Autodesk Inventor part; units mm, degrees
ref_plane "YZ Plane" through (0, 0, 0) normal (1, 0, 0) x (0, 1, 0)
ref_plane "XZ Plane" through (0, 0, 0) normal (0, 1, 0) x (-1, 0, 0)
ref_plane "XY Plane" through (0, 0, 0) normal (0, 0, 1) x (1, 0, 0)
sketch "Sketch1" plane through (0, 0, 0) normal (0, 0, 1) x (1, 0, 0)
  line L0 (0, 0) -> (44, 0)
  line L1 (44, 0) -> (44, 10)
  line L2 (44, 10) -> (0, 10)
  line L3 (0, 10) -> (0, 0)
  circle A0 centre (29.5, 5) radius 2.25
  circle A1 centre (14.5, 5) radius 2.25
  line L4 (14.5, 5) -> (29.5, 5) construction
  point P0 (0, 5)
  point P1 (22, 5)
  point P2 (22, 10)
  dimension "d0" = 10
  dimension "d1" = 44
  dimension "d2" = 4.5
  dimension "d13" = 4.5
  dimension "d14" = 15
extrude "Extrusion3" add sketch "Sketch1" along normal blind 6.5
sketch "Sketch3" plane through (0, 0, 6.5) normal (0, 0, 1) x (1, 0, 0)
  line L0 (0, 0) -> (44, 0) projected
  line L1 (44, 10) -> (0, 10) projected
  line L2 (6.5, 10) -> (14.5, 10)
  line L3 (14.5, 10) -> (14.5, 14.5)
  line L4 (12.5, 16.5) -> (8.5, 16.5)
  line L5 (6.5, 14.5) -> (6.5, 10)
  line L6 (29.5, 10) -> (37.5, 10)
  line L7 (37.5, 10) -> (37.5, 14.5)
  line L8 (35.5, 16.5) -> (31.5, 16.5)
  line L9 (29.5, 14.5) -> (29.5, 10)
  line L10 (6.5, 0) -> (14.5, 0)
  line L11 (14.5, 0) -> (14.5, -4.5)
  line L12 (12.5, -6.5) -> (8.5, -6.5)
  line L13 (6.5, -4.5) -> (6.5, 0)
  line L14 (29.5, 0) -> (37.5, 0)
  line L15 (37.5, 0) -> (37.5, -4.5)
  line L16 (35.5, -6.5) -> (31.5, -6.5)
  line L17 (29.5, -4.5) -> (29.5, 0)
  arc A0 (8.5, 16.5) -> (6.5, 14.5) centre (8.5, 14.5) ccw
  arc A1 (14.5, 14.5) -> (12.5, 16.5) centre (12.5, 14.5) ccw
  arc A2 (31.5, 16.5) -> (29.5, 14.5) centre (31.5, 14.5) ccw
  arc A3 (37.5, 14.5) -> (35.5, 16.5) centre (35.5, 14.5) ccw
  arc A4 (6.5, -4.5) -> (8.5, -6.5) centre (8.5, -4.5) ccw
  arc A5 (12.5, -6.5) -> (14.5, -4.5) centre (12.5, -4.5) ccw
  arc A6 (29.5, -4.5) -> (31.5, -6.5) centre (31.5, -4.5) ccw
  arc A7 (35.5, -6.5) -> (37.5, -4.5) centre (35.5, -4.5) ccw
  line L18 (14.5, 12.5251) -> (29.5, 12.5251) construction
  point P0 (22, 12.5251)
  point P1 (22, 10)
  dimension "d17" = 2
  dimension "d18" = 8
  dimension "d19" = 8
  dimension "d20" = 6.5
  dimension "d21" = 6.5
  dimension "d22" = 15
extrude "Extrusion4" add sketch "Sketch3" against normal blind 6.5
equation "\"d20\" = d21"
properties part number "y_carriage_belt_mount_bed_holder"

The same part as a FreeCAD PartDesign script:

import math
import FreeCAD as App
import Part
import Sketcher
from FreeCAD import Vector
Q = App.Units.Quantity

doc = App.newDocument("Part")
body = doc.addObject("PartDesign::Body", "Body")

sketch1 = body.newObject("Sketcher::SketchObject", "Sketch")
sketch1.AttachmentSupport = (doc.getObject("XY_Plane"), [""])
sketch1.MapMode = "FlatFace"
sketch1.addGeometry(Part.LineSegment(Vector(0, 10, 0), Vector(0, 0, 0)), False)
sketch1.addGeometry(Part.LineSegment(Vector(0, 0, 0), Vector(44, 0, 0)), False)
sketch1.addGeometry(Part.LineSegment(Vector(44, 0, 0), Vector(44, 10, 0)), False)
sketch1.addGeometry(Part.LineSegment(Vector(44, 10, 0), Vector(0, 10, 0)), False)
sketch1.addGeometry(Part.Circle(Vector(14.5, 5, 0), Vector(0, 0, 1), 2.25), False)
sketch1.addGeometry(Part.Circle(Vector(29.5, 5, 0), Vector(0, 0, 1), 2.25), False)
sketch1.addConstraint(Sketcher.Constraint("Coincident", 0, 2, 1, 1))
sketch1.addConstraint(Sketcher.Constraint("Coincident", 1, 2, 2, 1))
sketch1.addConstraint(Sketcher.Constraint("Coincident", 2, 2, 3, 1))
sketch1.addConstraint(Sketcher.Constraint("Coincident", 3, 2, 0, 1))
sketch1.addConstraint(Sketcher.Constraint("Vertical", 0))
sketch1.addConstraint(Sketcher.Constraint("Horizontal", 1))
sketch1.addConstraint(Sketcher.Constraint("Vertical", 2))
sketch1.addConstraint(Sketcher.Constraint("Horizontal", 3))
sketch1.addConstraint(Sketcher.Constraint("Coincident", 0, 2, -1, 1))
sketch1.addConstraint(Sketcher.Constraint("Equal", 4, 5))
sketch1.addConstraint(Sketcher.Constraint("Horizontal", 4, 3, 5, 3))
sketch1.addConstraint(Sketcher.Constraint("Diameter", 4, Q("4.5 mm")))
sketch1.addConstraint(Sketcher.Constraint("DistanceX", 1, 1, 1, 2, Q("44 mm")))
sketch1.addConstraint(Sketcher.Constraint("DistanceY", 0, 2, 0, 1, Q("10 mm")))
sketch1.addConstraint(Sketcher.Constraint("DistanceX", 4, 3, 5, 3, Q("15 mm")))
sketch1.addConstraint(Sketcher.Constraint("DistanceY", -1, 1, 4, 3, Q("5 mm")))
sketch1.addConstraint(Sketcher.Constraint("DistanceX", -1, 1, 4, 3, Q("14.5 mm")))
pad1 = body.newObject("PartDesign::Pad", "Pad")
pad1.Profile = sketch1
pad1.Length = 6.5

sketch2 = body.newObject("Sketcher::SketchObject", "Sketch001")
sketch2.AttachmentSupport = (doc.getObject("XY_Plane"), [""])
sketch2.MapMode = "FlatFace"
sketch2.AttachmentOffset = App.Placement(Vector(0, 0, 6.5), App.Rotation())
sketch2.addGeometry(Part.LineSegment(Vector(37.5, 0, 0), Vector(29.5, 0, 0)), False)
sketch2.addGeometry(Part.LineSegment(Vector(29.5, 0, 0), Vector(29.5, -4.5, 0)), False)
sketch2.addGeometry(Part.ArcOfCircle(Part.Circle(Vector(31.5, -4.5, 0), Vector(0, 0, 1), 2), math.radians(180), math.radians(270)), False)
sketch2.addGeometry(Part.LineSegment(Vector(31.5, -6.5, 0), Vector(35.5, -6.5, 0)), False)
sketch2.addGeometry(Part.ArcOfCircle(Part.Circle(Vector(35.5, -4.5, 0), Vector(0, 0, 1), 2), math.radians(-90), math.radians(0)), False)
sketch2.addGeometry(Part.LineSegment(Vector(37.5, -4.5, 0), Vector(37.5, 0, 0)), False)
sketch2.addGeometry(Part.LineSegment(Vector(14.5, 0, 0), Vector(6.5, 0, 0)), False)
sketch2.addGeometry(Part.LineSegment(Vector(6.5, 0, 0), Vector(6.5, -4.5, 0)), False)
sketch2.addGeometry(Part.ArcOfCircle(Part.Circle(Vector(8.5, -4.5, 0), Vector(0, 0, 1), 2), math.radians(180), math.radians(270)), False)
sketch2.addGeometry(Part.LineSegment(Vector(8.5, -6.5, 0), Vector(12.5, -6.5, 0)), False)
sketch2.addGeometry(Part.ArcOfCircle(Part.Circle(Vector(12.5, -4.5, 0), Vector(0, 0, 1), 2), math.radians(-90), math.radians(0)), False)
sketch2.addGeometry(Part.LineSegment(Vector(14.5, -4.5, 0), Vector(14.5, 0, 0)), False)
sketch2.addGeometry(Part.LineSegment(Vector(6.5, 10, 0), Vector(14.5, 10, 0)), False)
sketch2.addGeometry(Part.LineSegment(Vector(14.5, 10, 0), Vector(14.5, 14.5, 0)), False)
sketch2.addGeometry(Part.ArcOfCircle(Part.Circle(Vector(12.5, 14.5, 0), Vector(0, 0, 1), 2), math.radians(0), math.radians(90)), False)
sketch2.addGeometry(Part.LineSegment(Vector(12.5, 16.5, 0), Vector(8.5, 16.5, 0)), False)
sketch2.addGeometry(Part.ArcOfCircle(Part.Circle(Vector(8.5, 14.5, 0), Vector(0, 0, 1), 2), math.radians(90), math.radians(180)), False)
sketch2.addGeometry(Part.LineSegment(Vector(6.5, 14.5, 0), Vector(6.5, 10, 0)), False)
sketch2.addGeometry(Part.LineSegment(Vector(29.5, 10, 0), Vector(37.5, 10, 0)), False)
sketch2.addGeometry(Part.LineSegment(Vector(37.5, 10, 0), Vector(37.5, 14.5, 0)), False)
sketch2.addGeometry(Part.ArcOfCircle(Part.Circle(Vector(35.5, 14.5, 0), Vector(0, 0, 1), 2), math.radians(0), math.radians(90)), False)
sketch2.addGeometry(Part.LineSegment(Vector(35.5, 16.5, 0), Vector(31.5, 16.5, 0)), False)
sketch2.addGeometry(Part.ArcOfCircle(Part.Circle(Vector(31.5, 14.5, 0), Vector(0, 0, 1), 2), math.radians(90), math.radians(180)), False)
sketch2.addGeometry(Part.LineSegment(Vector(29.5, 14.5, 0), Vector(29.5, 10, 0)), False)
sketch2.addConstraint(Sketcher.Constraint("Coincident", 0, 2, 1, 1))
sketch2.addConstraint(Sketcher.Constraint("Tangent", 1, 2, 2, 1))
sketch2.addConstraint(Sketcher.Constraint("Tangent", 2, 2, 3, 1))
sketch2.addConstraint(Sketcher.Constraint("Tangent", 3, 2, 4, 1))
sketch2.addConstraint(Sketcher.Constraint("Tangent", 4, 2, 5, 1))
sketch2.addConstraint(Sketcher.Constraint("Coincident", 5, 2, 0, 1))
sketch2.addConstraint(Sketcher.Constraint("Coincident", 6, 2, 7, 1))
sketch2.addConstraint(Sketcher.Constraint("Tangent", 7, 2, 8, 1))
sketch2.addConstraint(Sketcher.Constraint("Tangent", 8, 2, 9, 1))
sketch2.addConstraint(Sketcher.Constraint("Tangent", 9, 2, 10, 1))
sketch2.addConstraint(Sketcher.Constraint("Tangent", 10, 2, 11, 1))
sketch2.addConstraint(Sketcher.Constraint("Coincident", 11, 2, 6, 1))
sketch2.addConstraint(Sketcher.Constraint("Coincident", 12, 2, 13, 1))
sketch2.addConstraint(Sketcher.Constraint("Tangent", 13, 2, 14, 1))
sketch2.addConstraint(Sketcher.Constraint("Tangent", 14, 2, 15, 1))
sketch2.addConstraint(Sketcher.Constraint("Tangent", 15, 2, 16, 1))
sketch2.addConstraint(Sketcher.Constraint("Tangent", 16, 2, 17, 1))
sketch2.addConstraint(Sketcher.Constraint("Coincident", 17, 2, 12, 1))
sketch2.addConstraint(Sketcher.Constraint("Coincident", 18, 2, 19, 1))
sketch2.addConstraint(Sketcher.Constraint("Tangent", 19, 2, 20, 1))
sketch2.addConstraint(Sketcher.Constraint("Tangent", 20, 2, 21, 1))
sketch2.addConstraint(Sketcher.Constraint("Tangent", 21, 2, 22, 1))
sketch2.addConstraint(Sketcher.Constraint("Tangent", 22, 2, 23, 1))
sketch2.addConstraint(Sketcher.Constraint("Coincident", 23, 2, 18, 1))
sketch2.addConstraint(Sketcher.Constraint("Horizontal", 0))
sketch2.addConstraint(Sketcher.Constraint("Vertical", 1))
sketch2.addConstraint(Sketcher.Constraint("Horizontal", 3))
sketch2.addConstraint(Sketcher.Constraint("Vertical", 5))
sketch2.addConstraint(Sketcher.Constraint("Horizontal", 6))
sketch2.addConstraint(Sketcher.Constraint("Vertical", 7))
sketch2.addConstraint(Sketcher.Constraint("Horizontal", 9))
sketch2.addConstraint(Sketcher.Constraint("Vertical", 11))
sketch2.addConstraint(Sketcher.Constraint("Horizontal", 12))
sketch2.addConstraint(Sketcher.Constraint("Vertical", 13))
sketch2.addConstraint(Sketcher.Constraint("Horizontal", 15))
sketch2.addConstraint(Sketcher.Constraint("Vertical", 17))
sketch2.addConstraint(Sketcher.Constraint("Horizontal", 18))
sketch2.addConstraint(Sketcher.Constraint("Vertical", 19))
sketch2.addConstraint(Sketcher.Constraint("Horizontal", 21))
sketch2.addConstraint(Sketcher.Constraint("Vertical", 23))
sketch2.addConstraint(Sketcher.Constraint("Equal", 2, 4))
sketch2.addConstraint(Sketcher.Constraint("Equal", 4, 8))
sketch2.addConstraint(Sketcher.Constraint("Equal", 8, 10))
sketch2.addConstraint(Sketcher.Constraint("Equal", 10, 14))
sketch2.addConstraint(Sketcher.Constraint("Equal", 14, 16))
sketch2.addConstraint(Sketcher.Constraint("Equal", 16, 20))
sketch2.addConstraint(Sketcher.Constraint("Equal", 20, 22))
sketch2.addConstraint(Sketcher.Constraint("PointOnObject", 0, 2, -1))
sketch2.addConstraint(Sketcher.Constraint("PointOnObject", 6, 2, -1))
sketch2.addConstraint(Sketcher.Constraint("Horizontal", 4, 3, 8, 3))
sketch2.addConstraint(Sketcher.Constraint("Horizontal", 16, 3, 20, 3))
sketch2.addConstraint(Sketcher.Constraint("Horizontal", 17, 2, 18, 2))
sketch2.addConstraint(Sketcher.Constraint("Vertical", 10, 3, 14, 3))
sketch2.addConstraint(Sketcher.Constraint("Vertical", 8, 3, 16, 3))
sketch2.addConstraint(Sketcher.Constraint("Vertical", 4, 3, 20, 3))
sketch2.addConstraint(Sketcher.Constraint("Vertical", 2, 3, 22, 3))
sketch2.addConstraint(Sketcher.Constraint("Equal", 0, 6))
sketch2.addConstraint(Sketcher.Constraint("Equal", 11, 13))
sketch2.addConstraint(Sketcher.Constraint("Radius", 2, Q("2 mm")))
sketch2.addConstraint(Sketcher.Constraint("DistanceX", 0, 2, 0, 1, Q("8 mm")))
sketch2.addConstraint(Sketcher.Constraint("DistanceY", 2, 2, -1, 1, Q("6.5 mm")))
sketch2.addConstraint(Sketcher.Constraint("DistanceX", -1, 1, 6, 2, Q("6.5 mm")))
sketch2.addConstraint(Sketcher.Constraint("DistanceY", -1, 1, 12, 2, Q("10 mm")))
sketch2.addConstraint(Sketcher.Constraint("DistanceX", 8, 3, 2, 3, Q("23 mm")))
pad2 = body.newObject("PartDesign::Pad", "Pad001")
pad2.Profile = sketch2
pad2.Length = 6.5
pad2.Reversed = True

doc.recompute()
